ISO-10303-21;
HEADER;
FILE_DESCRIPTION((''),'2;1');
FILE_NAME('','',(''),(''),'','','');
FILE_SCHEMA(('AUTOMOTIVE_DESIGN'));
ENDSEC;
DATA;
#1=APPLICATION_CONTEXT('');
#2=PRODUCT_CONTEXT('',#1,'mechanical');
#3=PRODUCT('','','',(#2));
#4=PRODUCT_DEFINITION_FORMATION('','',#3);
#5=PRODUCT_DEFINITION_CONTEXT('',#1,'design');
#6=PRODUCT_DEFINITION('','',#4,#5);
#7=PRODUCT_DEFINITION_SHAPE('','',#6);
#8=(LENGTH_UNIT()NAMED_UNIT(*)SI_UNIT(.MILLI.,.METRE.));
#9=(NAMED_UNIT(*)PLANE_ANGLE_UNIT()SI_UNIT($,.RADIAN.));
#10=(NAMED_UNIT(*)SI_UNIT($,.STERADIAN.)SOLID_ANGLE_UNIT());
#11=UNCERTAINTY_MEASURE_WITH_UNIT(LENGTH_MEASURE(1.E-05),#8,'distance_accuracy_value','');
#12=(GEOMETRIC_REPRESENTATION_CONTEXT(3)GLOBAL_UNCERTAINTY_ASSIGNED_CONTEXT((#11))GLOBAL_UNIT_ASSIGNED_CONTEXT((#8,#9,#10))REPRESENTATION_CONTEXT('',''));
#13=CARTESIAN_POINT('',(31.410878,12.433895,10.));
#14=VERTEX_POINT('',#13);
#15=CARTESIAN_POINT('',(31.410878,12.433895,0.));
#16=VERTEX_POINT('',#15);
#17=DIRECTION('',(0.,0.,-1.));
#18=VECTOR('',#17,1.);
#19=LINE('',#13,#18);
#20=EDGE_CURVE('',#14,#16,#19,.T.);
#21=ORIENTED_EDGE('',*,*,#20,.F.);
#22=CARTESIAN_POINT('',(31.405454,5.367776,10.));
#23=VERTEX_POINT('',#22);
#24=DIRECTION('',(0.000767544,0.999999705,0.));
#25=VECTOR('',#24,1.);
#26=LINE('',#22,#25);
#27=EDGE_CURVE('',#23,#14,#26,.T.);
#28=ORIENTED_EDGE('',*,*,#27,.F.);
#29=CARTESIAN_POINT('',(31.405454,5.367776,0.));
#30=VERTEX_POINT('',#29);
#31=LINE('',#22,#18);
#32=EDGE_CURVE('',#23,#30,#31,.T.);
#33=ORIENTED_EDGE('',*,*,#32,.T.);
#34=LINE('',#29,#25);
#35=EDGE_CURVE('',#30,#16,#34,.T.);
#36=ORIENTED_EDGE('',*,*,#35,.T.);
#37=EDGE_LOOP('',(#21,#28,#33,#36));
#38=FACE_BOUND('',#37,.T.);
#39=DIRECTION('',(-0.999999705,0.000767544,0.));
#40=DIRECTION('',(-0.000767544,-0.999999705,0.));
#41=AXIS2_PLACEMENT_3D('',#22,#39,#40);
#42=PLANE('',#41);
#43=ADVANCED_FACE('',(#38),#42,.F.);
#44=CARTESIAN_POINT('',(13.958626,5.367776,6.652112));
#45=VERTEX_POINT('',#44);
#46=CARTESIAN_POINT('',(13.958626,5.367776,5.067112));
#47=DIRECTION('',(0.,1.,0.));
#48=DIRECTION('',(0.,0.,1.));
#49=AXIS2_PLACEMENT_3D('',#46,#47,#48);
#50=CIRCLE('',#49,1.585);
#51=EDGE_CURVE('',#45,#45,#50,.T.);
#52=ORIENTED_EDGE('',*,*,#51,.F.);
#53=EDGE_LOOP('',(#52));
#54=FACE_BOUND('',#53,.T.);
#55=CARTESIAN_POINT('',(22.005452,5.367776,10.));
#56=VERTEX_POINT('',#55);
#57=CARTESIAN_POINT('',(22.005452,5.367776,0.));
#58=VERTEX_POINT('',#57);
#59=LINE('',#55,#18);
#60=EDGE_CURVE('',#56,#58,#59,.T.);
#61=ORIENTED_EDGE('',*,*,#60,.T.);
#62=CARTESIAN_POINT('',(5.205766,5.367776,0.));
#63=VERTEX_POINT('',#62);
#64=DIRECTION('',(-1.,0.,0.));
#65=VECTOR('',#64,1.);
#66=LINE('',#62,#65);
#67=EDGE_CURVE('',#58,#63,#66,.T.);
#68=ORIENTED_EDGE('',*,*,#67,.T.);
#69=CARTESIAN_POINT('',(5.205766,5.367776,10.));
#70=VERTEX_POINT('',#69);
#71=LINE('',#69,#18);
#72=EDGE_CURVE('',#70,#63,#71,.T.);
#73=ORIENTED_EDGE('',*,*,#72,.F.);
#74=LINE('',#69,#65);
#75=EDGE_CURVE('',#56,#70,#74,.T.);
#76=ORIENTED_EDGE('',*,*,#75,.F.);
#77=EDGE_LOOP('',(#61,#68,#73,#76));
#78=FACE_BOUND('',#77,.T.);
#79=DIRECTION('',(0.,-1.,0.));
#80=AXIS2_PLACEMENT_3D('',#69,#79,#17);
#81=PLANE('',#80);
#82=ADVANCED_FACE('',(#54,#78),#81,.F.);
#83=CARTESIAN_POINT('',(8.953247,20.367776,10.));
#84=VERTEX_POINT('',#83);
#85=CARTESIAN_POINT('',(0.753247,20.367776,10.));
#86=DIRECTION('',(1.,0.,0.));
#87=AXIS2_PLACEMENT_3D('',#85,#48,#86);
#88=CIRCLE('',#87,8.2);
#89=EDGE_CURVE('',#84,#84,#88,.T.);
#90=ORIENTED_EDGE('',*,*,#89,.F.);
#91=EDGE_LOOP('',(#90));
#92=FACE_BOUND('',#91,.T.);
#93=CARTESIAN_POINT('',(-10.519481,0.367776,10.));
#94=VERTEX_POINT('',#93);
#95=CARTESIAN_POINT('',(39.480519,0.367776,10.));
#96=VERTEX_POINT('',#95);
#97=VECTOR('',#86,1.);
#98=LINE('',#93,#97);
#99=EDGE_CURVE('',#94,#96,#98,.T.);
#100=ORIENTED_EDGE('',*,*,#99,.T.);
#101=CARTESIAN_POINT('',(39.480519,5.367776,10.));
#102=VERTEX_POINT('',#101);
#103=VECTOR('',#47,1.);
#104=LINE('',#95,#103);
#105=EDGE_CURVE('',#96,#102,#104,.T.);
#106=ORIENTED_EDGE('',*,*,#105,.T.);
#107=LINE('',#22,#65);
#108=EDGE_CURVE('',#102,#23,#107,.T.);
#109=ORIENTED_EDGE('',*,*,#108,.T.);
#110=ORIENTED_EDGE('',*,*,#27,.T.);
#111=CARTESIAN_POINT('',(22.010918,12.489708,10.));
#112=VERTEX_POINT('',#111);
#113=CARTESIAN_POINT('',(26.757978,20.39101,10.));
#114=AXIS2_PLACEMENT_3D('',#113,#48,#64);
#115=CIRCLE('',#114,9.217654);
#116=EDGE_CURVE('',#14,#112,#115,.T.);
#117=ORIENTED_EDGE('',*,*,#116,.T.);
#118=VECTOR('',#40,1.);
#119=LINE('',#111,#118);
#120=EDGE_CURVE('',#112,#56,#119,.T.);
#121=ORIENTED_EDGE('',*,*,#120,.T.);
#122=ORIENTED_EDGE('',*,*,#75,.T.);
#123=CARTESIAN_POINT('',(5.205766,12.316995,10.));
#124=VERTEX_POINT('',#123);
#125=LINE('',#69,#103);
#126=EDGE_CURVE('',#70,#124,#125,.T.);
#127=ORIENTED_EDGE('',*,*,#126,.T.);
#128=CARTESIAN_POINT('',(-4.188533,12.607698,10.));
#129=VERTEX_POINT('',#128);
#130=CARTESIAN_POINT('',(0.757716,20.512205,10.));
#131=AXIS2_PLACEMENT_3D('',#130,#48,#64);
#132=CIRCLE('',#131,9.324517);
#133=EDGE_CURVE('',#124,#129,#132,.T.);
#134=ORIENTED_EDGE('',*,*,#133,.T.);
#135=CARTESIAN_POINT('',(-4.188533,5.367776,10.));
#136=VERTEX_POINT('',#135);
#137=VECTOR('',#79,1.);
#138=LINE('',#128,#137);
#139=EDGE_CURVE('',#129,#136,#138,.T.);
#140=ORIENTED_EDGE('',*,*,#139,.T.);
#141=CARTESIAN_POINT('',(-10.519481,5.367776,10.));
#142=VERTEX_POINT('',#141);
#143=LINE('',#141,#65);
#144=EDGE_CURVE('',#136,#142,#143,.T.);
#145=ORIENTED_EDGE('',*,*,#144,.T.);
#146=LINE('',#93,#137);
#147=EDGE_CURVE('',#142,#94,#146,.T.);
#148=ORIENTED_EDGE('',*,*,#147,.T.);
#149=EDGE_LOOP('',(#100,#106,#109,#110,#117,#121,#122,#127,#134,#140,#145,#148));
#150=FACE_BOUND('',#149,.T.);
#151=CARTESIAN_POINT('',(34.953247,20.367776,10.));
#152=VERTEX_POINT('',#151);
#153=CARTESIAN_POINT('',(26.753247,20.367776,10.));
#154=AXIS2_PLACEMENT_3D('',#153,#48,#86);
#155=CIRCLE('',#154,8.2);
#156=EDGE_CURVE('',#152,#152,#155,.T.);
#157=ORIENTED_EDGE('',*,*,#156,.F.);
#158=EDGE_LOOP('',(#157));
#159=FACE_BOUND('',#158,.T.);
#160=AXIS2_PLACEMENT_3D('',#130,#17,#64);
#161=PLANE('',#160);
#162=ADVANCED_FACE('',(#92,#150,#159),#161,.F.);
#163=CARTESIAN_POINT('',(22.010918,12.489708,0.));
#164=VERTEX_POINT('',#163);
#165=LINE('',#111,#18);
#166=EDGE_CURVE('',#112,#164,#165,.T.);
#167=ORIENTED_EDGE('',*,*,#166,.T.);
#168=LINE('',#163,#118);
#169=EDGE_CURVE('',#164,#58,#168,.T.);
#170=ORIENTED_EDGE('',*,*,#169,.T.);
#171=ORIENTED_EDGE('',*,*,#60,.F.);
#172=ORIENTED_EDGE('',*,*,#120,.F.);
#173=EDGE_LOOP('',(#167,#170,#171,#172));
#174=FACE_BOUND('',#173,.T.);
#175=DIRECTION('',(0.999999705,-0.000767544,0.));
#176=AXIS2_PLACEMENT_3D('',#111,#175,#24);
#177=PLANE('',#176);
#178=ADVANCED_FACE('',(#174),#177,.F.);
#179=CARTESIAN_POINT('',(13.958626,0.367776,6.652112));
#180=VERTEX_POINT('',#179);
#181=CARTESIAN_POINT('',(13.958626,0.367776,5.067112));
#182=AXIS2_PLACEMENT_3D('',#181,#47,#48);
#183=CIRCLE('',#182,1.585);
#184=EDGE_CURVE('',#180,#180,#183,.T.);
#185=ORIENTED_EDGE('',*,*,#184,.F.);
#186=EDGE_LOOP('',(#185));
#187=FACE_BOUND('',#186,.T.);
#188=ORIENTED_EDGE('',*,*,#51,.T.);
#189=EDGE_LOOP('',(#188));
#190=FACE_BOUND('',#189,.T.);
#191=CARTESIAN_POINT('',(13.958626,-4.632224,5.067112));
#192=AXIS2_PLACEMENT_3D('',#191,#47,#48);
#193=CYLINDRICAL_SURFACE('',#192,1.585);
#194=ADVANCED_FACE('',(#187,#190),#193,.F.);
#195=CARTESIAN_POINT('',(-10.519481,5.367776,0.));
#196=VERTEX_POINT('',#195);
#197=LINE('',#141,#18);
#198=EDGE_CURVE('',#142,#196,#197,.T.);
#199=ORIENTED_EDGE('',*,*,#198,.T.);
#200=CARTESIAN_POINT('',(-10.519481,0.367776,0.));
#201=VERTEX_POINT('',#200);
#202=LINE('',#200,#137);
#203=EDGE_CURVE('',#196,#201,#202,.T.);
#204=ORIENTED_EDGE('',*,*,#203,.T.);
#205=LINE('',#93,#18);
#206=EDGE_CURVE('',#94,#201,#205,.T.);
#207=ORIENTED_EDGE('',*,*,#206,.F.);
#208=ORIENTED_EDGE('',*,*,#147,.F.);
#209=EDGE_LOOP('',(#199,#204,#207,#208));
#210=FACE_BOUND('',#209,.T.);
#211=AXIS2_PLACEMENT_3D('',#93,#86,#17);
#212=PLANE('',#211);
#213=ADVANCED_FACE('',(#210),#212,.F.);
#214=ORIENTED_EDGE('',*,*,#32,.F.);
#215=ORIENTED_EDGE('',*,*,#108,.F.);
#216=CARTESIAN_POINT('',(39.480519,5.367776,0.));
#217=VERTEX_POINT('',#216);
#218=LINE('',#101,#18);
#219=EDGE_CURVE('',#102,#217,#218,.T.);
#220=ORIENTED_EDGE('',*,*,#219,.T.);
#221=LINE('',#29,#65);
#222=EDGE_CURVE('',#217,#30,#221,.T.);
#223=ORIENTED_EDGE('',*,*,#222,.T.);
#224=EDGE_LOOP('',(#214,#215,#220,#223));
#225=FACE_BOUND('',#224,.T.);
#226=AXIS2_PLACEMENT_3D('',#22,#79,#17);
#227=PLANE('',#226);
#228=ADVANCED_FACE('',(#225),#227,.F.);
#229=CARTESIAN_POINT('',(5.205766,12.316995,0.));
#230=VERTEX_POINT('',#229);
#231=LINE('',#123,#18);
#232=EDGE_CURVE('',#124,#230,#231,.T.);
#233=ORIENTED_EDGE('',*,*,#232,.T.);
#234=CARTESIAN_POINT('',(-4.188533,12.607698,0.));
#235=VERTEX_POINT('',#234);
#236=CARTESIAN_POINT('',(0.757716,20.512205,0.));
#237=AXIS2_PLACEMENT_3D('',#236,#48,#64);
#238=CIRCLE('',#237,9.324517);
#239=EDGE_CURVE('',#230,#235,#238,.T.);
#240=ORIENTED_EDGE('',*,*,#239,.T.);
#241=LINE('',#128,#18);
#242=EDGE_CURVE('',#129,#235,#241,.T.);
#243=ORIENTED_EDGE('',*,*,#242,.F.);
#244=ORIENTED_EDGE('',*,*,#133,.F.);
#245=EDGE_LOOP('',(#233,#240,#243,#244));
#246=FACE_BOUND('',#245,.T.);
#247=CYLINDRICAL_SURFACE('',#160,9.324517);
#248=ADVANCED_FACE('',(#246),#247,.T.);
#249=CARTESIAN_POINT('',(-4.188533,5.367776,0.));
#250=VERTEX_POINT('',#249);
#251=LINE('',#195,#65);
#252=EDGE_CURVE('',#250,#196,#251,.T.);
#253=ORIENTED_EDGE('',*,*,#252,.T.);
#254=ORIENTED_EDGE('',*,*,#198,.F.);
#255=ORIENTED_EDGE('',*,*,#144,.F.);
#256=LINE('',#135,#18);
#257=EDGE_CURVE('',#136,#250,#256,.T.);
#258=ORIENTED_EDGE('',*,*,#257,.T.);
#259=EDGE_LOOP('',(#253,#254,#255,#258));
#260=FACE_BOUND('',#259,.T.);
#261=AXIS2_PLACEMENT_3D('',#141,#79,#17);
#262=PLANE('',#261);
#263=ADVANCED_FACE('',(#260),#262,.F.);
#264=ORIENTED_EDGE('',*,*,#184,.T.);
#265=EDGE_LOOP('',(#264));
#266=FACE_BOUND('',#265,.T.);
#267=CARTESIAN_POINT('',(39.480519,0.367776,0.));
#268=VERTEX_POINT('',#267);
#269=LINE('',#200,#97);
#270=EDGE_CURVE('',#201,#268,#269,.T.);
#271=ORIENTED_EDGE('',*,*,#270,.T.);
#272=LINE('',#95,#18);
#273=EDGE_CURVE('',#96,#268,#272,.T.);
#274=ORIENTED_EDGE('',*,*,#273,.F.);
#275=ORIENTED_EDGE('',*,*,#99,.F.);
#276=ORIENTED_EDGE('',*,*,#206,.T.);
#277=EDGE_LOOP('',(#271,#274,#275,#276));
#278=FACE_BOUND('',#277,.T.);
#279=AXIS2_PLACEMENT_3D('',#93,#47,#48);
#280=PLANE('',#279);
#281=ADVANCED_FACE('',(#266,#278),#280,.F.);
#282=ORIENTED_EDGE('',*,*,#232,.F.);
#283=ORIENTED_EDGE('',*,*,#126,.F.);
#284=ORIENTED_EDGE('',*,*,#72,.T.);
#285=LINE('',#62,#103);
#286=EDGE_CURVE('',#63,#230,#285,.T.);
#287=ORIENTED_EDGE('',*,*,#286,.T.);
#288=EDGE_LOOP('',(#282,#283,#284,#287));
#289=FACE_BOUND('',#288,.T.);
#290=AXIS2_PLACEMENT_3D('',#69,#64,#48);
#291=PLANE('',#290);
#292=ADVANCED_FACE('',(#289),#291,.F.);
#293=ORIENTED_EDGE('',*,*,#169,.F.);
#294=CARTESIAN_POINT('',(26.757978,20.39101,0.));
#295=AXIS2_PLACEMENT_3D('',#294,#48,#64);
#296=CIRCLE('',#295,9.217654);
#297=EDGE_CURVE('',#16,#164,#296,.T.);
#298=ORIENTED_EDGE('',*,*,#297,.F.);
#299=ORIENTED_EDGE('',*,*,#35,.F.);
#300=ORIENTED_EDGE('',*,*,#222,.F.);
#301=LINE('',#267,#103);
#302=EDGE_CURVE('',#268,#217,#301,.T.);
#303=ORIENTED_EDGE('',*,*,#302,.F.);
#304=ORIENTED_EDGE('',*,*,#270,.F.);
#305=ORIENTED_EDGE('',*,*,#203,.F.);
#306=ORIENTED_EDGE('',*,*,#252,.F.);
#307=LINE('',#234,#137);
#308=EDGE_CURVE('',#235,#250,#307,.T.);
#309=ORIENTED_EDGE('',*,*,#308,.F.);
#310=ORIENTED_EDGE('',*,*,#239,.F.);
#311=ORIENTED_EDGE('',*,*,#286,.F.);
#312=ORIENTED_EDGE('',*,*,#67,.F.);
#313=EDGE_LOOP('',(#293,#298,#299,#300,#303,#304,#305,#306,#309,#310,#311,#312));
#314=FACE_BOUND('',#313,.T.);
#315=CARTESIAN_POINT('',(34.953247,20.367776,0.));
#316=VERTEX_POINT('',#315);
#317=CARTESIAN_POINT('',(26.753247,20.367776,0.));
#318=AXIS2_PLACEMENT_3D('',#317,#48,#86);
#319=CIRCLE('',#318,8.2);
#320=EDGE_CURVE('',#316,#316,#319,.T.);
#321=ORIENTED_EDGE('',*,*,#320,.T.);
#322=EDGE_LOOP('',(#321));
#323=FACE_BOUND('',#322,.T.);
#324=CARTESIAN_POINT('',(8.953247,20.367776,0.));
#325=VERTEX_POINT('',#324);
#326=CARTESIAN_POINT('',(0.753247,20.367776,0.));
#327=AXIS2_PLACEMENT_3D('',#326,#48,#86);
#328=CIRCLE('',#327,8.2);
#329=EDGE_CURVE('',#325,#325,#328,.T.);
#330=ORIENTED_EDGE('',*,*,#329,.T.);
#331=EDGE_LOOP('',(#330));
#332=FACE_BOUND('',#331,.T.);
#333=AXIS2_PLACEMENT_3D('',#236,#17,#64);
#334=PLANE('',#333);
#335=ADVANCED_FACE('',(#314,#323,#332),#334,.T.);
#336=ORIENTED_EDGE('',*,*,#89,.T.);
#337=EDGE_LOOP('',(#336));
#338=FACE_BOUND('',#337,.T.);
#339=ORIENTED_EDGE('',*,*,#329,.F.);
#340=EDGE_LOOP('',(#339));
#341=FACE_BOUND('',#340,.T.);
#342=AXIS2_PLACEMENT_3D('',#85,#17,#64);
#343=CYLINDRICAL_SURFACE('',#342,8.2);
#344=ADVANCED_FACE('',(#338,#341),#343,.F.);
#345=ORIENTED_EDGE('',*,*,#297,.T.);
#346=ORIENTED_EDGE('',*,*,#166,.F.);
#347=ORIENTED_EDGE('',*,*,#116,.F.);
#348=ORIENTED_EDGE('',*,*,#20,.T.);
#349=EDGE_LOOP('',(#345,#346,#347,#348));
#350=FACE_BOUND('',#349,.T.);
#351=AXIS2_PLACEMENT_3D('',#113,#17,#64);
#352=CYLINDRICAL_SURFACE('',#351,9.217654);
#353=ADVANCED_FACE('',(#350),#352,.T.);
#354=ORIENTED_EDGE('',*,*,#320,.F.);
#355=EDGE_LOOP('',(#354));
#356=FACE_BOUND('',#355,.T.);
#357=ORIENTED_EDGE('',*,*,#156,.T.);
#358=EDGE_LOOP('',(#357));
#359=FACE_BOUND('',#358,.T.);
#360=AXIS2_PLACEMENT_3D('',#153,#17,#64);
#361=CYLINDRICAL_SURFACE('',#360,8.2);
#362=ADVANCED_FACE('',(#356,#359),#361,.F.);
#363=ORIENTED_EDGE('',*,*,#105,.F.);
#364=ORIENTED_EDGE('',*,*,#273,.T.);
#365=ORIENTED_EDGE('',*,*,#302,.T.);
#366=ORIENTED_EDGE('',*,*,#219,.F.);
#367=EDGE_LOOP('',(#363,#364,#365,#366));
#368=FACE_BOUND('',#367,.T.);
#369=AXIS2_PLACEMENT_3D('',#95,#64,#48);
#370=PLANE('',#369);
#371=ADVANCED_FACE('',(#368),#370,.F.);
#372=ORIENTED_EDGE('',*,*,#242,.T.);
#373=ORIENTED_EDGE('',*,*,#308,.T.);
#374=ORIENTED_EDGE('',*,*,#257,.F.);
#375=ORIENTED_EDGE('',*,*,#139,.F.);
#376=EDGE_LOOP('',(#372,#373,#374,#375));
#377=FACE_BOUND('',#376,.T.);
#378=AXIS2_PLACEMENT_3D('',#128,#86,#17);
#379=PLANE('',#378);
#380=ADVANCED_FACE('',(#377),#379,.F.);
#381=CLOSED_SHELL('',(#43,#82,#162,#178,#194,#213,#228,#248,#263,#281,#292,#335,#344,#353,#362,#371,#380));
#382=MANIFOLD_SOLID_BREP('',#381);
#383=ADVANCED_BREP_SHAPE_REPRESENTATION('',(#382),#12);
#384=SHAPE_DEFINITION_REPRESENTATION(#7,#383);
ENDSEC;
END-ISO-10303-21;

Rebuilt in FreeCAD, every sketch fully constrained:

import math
import FreeCAD as App
import Part
import Sketcher
from FreeCAD import Vector
Q = App.Units.Quantity

doc = App.newDocument("Part")
body = doc.addObject("PartDesign::Body", "Body")

# Sketch on XY plane
sketch1 = doc.addObject("Sketcher::SketchObject", "Sketch")
body.addObject(sketch1)
sketch1.AttachmentSupport = (doc.XY_Plane, [""])
sketch1.MapMode = "FlatFace"
sketch1.addGeometry([
    Part.LineSegment(Vector(-4, 13, 0), Vector(-4, 5, 0)),  # 0
    Part.LineSegment(Vector(-4, 5, 0), Vector(-11, 5, 0)),  # 1
    Part.LineSegment(Vector(-11, 5, 0), Vector(-11, 0, 0)),  # 2
    Part.LineSegment(Vector(-11, 0, 0), Vector(39, 0, 0)),  # 3
    Part.LineSegment(Vector(39, 0, 0), Vector(39, 5, 0)),  # 4
    Part.LineSegment(Vector(39, 5, 0), Vector(31, 5, 0)),  # 5
    Part.LineSegment(Vector(31, 5, 0), Vector(31, 12, 0)),  # 6
    Part.ArcOfCircle(Part.Circle(Vector(27, 20, 0), Vector(0, 0, 1), 9), math.radians(-60), math.radians(239)),  # 7
    Part.LineSegment(Vector(22, 12, 0), Vector(22, 5, 0)),  # 8
    Part.LineSegment(Vector(22, 5, 0), Vector(5, 5, 0)),  # 9
    Part.LineSegment(Vector(5, 5, 0), Vector(5, 12, 0)),  # 10
    Part.ArcOfCircle(Part.Circle(Vector(1, 21, 0), Vector(0, 0, 1), 9), math.radians(-62), math.radians(238)),  # 11
    Part.Circle(Vector(1, 20, 0), Vector(0, 0, 1), 8),  # 12
    Part.Circle(Vector(27, 20, 0), Vector(0, 0, 1), 8),  # 13
], False)
sketch1.addConstraint([
    Sketcher.Constraint("Coincident", 0, 2, 1, 1),
    Sketcher.Constraint("Coincident", 1, 2, 2, 1),
    Sketcher.Constraint("Coincident", 2, 2, 3, 1),
    Sketcher.Constraint("Coincident", 3, 2, 4, 1),
    Sketcher.Constraint("Coincident", 4, 2, 5, 1),
    Sketcher.Constraint("Coincident", 5, 2, 6, 1),
    Sketcher.Constraint("Coincident", 6, 2, 7, 1),
    Sketcher.Constraint("Coincident", 7, 2, 8, 1),
    Sketcher.Constraint("Coincident", 8, 2, 9, 1),
    Sketcher.Constraint("Coincident", 9, 2, 10, 1),
    Sketcher.Constraint("Coincident", 10, 2, 11, 1),
    Sketcher.Constraint("Coincident", 11, 2, 0, 1),
    Sketcher.Constraint("Vertical", 0),
    Sketcher.Constraint("Horizontal", 1),
    Sketcher.Constraint("Vertical", 2),
    Sketcher.Constraint("Horizontal", 3),
    Sketcher.Constraint("Vertical", 4),
    Sketcher.Constraint("Horizontal", 5),
    Sketcher.Constraint("Horizontal", 9),
    Sketcher.Constraint("Vertical", 10),
    Sketcher.Constraint("Equal", 12, 13),
    Sketcher.Constraint("Parallel", 6, 8),
    Sketcher.Constraint("Horizontal", 12, 3, 13, 3),
    Sketcher.Constraint("Horizontal", 1, 2, 4, 2),
    Sketcher.Constraint("Horizontal", 5, 2, 8, 2),
    Sketcher.Constraint("Diameter", 12, Q("16.4 mm")),
    Sketcher.Constraint("DistanceX", 3, 1, 3, 2, Q("50 mm")),
    Sketcher.Constraint("DistanceY", 2, 2, 2, 1, Q("5 mm")),
    Sketcher.Constraint("DistanceX", 12, 3, 13, 3, Q("26 mm")),
    Sketcher.Constraint("DistanceY", 0, 2, 12, 3, Q("15 mm")),
    Sketcher.Constraint("Radius", 7, Q("9.217654 mm")),
    Sketcher.Constraint("Radius", 11, Q("9.324517 mm")),
    Sketcher.Constraint("DistanceY", 0, 2, 0, 1, Q("7.239922 mm")),
    Sketcher.Constraint("DistanceY", 10, 1, 10, 2, Q("6.949219 mm")),
    Sketcher.Constraint("DistanceX", 7, 3, 6, 2, Q("4.6529 mm")),
    Sketcher.Constraint("DistanceY", 7, 2, 7, 3, Q("7.901302 mm")),
    Sketcher.Constraint("DistanceX", 7, 2, 4, 2, Q("17.469602 mm")),
    Sketcher.Constraint("DistanceX", 0, 2, 9, 2, Q("9.394298 mm")),
    Sketcher.Constraint("Distance", 6, Q("7.066121 mm")),
    Sketcher.Constraint("DistanceX", 1, 2, 1, 1, Q("6.330948 mm")),
    Sketcher.Constraint("DistanceX", 5, 2, 5, 1, Q("8.075065 mm")),
    Sketcher.Constraint("DistanceX", -1, 1, 7, 3, Q("26.757978 mm")),
    Sketcher.Constraint("DistanceY", -1, 1, 7, 3, Q("20.39101 mm")),
    Sketcher.Constraint("DistanceX", 12, 3, 11, 3, Q("0.004469 mm")),
])
pad1 = doc.addObject("PartDesign::Pad", "Pad")
body.addObject(pad1)
pad1.Profile = sketch1
pad1.Length = 10

# Sketch on XZ plane
sketch2 = doc.addObject("Sketcher::SketchObject", "Sketch001")
body.addObject(sketch2)
sketch2.AttachmentSupport = (doc.XZ_Plane, [""])
sketch2.MapMode = "FlatFace"
sketch2.AttachmentOffset = App.Placement(Vector(0, 0, -5.367776), App.Rotation())
sketch2.addGeometry(Part.Circle(Vector(14, 5.1, 0), Vector(0, 0, 1), 1.6), False)
sketch2.addConstraint([
    Sketcher.Constraint("Diameter", 0, Q("3.17 mm")),
    Sketcher.Constraint("DistanceY", -1, 1, 0, 3, Q("5.067112 mm")),
    Sketcher.Constraint("DistanceX", -1, 1, 0, 3, Q("13.958626 mm")),
])
pocket1 = doc.addObject("PartDesign::Pocket", "Pocket")
body.addObject(pocket1)
pocket1.Profile = sketch2
pocket1.Length = 10
pocket1.Reversed = True

doc.recompute()
